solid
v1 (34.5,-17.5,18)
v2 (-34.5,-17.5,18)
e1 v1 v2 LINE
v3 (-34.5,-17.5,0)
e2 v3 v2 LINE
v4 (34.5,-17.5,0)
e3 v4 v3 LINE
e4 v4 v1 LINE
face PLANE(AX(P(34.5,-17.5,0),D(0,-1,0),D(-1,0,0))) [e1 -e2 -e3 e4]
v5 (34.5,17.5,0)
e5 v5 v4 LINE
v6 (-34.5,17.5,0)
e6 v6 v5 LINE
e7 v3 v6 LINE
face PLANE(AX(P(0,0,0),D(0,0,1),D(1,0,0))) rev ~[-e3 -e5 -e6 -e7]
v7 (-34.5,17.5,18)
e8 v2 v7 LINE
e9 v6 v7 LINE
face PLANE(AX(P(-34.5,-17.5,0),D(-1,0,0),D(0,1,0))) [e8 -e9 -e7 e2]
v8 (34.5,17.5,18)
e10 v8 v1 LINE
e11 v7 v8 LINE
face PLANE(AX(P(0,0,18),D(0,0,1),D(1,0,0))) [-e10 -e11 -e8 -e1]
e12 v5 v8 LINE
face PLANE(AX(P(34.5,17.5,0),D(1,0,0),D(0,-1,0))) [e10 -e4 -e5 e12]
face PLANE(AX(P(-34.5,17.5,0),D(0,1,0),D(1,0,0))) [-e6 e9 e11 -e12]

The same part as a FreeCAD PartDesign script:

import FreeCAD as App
import Part
import Sketcher
Q = App.Units.Quantity


def add_polygon(sketch, points):
    """Adds a closed chain of lines whose ends are joined by coincident constraints."""
    first, n = sketch.GeometryCount, len(points)
    for a, b in zip(points, points[1:] + points[:1]):
        sketch.addGeometry(Part.LineSegment(App.Vector(*a, 0), App.Vector(*b, 0)), False)
    for i in range(n):
        sketch.addConstraint(Sketcher.Constraint("Coincident", first + i, 2, first + (i + 1) % n, 1))

doc = App.newDocument("Part")
body = doc.addObject("PartDesign::Body", "Body")

# Sketch on XY plane
sketch1 = body.newObject("Sketcher::SketchObject", "Sketch")
sketch1.AttachmentSupport = (doc.getObject("XY_Plane"), [""])
sketch1.MapMode = "FlatFace"
add_polygon(sketch1, [(34, 18), (-34, 18), (-34, -18), (34, -18)])  # lines 0-3
sketch1.addConstraint(Sketcher.Constraint("Horizontal", 0))
sketch1.addConstraint(Sketcher.Constraint("Vertical", 1))
sketch1.addConstraint(Sketcher.Constraint("Horizontal", 2))
sketch1.addConstraint(Sketcher.Constraint("Vertical", 3))
sketch1.addConstraint(Sketcher.Constraint("Symmetric", 0, 2, 2, 2, -1, 1))
sketch1.addConstraint(Sketcher.Constraint("DistanceX", 0, 2, 0, 1, Q("69 mm")))
sketch1.addConstraint(Sketcher.Constraint("DistanceY", 1, 2, 1, 1, Q("35 mm")))
pad1 = body.newObject("PartDesign::Pad", "Pad")
pad1.Profile = sketch1
pad1.Length = 18

doc.recompute()
